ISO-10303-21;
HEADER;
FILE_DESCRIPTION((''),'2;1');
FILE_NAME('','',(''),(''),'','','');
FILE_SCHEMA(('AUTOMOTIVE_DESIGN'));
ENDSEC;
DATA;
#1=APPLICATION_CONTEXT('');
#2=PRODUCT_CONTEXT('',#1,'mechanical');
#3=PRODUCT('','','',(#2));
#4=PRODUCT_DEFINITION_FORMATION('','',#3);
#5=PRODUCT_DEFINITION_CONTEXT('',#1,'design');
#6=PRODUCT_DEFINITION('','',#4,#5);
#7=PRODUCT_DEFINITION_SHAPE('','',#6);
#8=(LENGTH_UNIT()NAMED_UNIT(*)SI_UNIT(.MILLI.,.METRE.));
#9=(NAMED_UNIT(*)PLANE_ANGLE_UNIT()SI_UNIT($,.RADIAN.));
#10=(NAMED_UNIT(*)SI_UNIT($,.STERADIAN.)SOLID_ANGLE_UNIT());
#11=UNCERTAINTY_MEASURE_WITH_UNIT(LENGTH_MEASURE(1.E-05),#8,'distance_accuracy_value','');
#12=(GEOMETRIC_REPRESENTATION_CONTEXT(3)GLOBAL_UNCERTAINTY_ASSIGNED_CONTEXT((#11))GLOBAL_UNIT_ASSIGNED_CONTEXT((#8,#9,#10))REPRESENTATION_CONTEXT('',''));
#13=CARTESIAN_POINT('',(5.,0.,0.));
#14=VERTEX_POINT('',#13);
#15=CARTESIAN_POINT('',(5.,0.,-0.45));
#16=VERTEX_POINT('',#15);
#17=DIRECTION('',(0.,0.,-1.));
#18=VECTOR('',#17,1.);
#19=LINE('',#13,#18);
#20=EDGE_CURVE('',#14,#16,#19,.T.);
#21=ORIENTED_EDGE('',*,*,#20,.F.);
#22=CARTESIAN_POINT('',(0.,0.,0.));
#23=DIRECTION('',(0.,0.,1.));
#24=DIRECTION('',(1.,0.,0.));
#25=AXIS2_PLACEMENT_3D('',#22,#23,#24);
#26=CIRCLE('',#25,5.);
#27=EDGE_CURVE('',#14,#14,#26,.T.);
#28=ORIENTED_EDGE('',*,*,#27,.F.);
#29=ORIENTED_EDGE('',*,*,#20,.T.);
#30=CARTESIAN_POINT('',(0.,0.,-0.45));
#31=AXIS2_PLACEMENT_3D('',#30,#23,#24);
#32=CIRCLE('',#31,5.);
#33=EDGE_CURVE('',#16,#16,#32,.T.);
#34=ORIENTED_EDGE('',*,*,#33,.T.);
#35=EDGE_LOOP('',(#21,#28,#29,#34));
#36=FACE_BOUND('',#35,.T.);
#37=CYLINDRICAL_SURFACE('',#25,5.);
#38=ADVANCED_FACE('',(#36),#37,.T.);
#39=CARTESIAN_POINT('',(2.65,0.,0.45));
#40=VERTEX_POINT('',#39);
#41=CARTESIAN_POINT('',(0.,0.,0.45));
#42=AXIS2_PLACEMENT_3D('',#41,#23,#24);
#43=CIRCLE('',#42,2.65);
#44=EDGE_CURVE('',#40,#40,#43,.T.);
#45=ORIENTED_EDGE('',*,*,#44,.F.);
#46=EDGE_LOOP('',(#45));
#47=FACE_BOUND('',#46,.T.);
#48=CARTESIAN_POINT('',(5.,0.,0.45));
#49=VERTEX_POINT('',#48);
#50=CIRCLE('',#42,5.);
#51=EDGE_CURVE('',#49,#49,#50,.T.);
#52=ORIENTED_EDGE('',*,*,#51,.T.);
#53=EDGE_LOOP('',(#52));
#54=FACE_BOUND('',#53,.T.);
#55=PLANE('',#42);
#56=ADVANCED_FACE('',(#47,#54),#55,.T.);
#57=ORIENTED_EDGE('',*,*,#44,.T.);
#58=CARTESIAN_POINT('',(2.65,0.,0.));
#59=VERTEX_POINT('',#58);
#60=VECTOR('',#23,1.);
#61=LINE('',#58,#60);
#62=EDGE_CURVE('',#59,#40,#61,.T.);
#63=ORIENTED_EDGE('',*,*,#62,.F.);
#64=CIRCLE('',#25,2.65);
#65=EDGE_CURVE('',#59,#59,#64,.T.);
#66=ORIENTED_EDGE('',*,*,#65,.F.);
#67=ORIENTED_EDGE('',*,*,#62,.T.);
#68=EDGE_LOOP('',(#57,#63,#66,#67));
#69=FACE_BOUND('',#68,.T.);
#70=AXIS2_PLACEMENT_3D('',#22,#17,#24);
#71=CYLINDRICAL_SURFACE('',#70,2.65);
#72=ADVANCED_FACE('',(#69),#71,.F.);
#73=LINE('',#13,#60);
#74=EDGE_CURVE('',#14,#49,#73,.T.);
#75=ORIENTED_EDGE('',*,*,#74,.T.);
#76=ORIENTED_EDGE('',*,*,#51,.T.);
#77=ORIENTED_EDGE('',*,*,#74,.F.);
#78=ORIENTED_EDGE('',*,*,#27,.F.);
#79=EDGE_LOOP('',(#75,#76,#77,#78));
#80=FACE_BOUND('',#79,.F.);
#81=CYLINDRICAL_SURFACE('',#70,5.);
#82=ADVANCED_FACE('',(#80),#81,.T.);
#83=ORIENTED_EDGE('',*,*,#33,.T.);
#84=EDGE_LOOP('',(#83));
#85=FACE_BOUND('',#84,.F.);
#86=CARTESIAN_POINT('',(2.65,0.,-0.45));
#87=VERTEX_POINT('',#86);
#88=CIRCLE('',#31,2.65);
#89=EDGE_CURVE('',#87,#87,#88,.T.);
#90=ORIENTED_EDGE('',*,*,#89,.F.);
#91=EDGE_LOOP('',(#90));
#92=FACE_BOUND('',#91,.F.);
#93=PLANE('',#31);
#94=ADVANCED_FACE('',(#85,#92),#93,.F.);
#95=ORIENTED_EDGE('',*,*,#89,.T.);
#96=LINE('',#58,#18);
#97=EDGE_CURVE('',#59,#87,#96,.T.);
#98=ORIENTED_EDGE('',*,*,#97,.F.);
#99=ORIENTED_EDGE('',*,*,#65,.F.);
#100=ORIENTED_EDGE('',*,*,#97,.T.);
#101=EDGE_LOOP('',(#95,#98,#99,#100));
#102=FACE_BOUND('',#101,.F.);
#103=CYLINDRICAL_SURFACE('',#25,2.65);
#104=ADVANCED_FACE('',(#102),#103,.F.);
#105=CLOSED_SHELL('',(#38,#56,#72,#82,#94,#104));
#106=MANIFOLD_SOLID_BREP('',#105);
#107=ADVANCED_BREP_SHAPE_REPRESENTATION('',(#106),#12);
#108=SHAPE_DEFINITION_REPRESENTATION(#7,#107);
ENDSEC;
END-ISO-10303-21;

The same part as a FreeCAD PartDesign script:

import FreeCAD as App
import Part
import Sketcher

doc = App.newDocument("Part")
body = doc.addObject("PartDesign::Body", "Body")

sketch1 = doc.addObject("Sketcher::SketchObject", "Sketch")
body.addObject(sketch1)
sketch1.AttachmentSupport = (doc.XY_Plane, [""])
sketch1.MapMode = "FlatFace"
sketch1.addGeometry([
    Part.Circle(App.Vector(0, 0, 0), App.Vector(0, 0, 1), 5),
    Part.Circle(App.Vector(0, 0, 0), App.Vector(0, 0, 1), 2.6),
], False)
sketch1.addConstraint([
    Sketcher.Constraint("Coincident", 0, 3, -1, 1),
    Sketcher.Constraint("Coincident", 1, 3, -1, 1),
    Sketcher.Constraint("Diameter", 0, 10.0),
    Sketcher.Constraint("Diameter", 1, 5.3),
])
pad1 = doc.addObject("PartDesign::Pad", "Pad")
body.addObject(pad1)
pad1.Profile = sketch1
pad1.Length = 0.9
pad1.Midplane = True

doc.recompute()
